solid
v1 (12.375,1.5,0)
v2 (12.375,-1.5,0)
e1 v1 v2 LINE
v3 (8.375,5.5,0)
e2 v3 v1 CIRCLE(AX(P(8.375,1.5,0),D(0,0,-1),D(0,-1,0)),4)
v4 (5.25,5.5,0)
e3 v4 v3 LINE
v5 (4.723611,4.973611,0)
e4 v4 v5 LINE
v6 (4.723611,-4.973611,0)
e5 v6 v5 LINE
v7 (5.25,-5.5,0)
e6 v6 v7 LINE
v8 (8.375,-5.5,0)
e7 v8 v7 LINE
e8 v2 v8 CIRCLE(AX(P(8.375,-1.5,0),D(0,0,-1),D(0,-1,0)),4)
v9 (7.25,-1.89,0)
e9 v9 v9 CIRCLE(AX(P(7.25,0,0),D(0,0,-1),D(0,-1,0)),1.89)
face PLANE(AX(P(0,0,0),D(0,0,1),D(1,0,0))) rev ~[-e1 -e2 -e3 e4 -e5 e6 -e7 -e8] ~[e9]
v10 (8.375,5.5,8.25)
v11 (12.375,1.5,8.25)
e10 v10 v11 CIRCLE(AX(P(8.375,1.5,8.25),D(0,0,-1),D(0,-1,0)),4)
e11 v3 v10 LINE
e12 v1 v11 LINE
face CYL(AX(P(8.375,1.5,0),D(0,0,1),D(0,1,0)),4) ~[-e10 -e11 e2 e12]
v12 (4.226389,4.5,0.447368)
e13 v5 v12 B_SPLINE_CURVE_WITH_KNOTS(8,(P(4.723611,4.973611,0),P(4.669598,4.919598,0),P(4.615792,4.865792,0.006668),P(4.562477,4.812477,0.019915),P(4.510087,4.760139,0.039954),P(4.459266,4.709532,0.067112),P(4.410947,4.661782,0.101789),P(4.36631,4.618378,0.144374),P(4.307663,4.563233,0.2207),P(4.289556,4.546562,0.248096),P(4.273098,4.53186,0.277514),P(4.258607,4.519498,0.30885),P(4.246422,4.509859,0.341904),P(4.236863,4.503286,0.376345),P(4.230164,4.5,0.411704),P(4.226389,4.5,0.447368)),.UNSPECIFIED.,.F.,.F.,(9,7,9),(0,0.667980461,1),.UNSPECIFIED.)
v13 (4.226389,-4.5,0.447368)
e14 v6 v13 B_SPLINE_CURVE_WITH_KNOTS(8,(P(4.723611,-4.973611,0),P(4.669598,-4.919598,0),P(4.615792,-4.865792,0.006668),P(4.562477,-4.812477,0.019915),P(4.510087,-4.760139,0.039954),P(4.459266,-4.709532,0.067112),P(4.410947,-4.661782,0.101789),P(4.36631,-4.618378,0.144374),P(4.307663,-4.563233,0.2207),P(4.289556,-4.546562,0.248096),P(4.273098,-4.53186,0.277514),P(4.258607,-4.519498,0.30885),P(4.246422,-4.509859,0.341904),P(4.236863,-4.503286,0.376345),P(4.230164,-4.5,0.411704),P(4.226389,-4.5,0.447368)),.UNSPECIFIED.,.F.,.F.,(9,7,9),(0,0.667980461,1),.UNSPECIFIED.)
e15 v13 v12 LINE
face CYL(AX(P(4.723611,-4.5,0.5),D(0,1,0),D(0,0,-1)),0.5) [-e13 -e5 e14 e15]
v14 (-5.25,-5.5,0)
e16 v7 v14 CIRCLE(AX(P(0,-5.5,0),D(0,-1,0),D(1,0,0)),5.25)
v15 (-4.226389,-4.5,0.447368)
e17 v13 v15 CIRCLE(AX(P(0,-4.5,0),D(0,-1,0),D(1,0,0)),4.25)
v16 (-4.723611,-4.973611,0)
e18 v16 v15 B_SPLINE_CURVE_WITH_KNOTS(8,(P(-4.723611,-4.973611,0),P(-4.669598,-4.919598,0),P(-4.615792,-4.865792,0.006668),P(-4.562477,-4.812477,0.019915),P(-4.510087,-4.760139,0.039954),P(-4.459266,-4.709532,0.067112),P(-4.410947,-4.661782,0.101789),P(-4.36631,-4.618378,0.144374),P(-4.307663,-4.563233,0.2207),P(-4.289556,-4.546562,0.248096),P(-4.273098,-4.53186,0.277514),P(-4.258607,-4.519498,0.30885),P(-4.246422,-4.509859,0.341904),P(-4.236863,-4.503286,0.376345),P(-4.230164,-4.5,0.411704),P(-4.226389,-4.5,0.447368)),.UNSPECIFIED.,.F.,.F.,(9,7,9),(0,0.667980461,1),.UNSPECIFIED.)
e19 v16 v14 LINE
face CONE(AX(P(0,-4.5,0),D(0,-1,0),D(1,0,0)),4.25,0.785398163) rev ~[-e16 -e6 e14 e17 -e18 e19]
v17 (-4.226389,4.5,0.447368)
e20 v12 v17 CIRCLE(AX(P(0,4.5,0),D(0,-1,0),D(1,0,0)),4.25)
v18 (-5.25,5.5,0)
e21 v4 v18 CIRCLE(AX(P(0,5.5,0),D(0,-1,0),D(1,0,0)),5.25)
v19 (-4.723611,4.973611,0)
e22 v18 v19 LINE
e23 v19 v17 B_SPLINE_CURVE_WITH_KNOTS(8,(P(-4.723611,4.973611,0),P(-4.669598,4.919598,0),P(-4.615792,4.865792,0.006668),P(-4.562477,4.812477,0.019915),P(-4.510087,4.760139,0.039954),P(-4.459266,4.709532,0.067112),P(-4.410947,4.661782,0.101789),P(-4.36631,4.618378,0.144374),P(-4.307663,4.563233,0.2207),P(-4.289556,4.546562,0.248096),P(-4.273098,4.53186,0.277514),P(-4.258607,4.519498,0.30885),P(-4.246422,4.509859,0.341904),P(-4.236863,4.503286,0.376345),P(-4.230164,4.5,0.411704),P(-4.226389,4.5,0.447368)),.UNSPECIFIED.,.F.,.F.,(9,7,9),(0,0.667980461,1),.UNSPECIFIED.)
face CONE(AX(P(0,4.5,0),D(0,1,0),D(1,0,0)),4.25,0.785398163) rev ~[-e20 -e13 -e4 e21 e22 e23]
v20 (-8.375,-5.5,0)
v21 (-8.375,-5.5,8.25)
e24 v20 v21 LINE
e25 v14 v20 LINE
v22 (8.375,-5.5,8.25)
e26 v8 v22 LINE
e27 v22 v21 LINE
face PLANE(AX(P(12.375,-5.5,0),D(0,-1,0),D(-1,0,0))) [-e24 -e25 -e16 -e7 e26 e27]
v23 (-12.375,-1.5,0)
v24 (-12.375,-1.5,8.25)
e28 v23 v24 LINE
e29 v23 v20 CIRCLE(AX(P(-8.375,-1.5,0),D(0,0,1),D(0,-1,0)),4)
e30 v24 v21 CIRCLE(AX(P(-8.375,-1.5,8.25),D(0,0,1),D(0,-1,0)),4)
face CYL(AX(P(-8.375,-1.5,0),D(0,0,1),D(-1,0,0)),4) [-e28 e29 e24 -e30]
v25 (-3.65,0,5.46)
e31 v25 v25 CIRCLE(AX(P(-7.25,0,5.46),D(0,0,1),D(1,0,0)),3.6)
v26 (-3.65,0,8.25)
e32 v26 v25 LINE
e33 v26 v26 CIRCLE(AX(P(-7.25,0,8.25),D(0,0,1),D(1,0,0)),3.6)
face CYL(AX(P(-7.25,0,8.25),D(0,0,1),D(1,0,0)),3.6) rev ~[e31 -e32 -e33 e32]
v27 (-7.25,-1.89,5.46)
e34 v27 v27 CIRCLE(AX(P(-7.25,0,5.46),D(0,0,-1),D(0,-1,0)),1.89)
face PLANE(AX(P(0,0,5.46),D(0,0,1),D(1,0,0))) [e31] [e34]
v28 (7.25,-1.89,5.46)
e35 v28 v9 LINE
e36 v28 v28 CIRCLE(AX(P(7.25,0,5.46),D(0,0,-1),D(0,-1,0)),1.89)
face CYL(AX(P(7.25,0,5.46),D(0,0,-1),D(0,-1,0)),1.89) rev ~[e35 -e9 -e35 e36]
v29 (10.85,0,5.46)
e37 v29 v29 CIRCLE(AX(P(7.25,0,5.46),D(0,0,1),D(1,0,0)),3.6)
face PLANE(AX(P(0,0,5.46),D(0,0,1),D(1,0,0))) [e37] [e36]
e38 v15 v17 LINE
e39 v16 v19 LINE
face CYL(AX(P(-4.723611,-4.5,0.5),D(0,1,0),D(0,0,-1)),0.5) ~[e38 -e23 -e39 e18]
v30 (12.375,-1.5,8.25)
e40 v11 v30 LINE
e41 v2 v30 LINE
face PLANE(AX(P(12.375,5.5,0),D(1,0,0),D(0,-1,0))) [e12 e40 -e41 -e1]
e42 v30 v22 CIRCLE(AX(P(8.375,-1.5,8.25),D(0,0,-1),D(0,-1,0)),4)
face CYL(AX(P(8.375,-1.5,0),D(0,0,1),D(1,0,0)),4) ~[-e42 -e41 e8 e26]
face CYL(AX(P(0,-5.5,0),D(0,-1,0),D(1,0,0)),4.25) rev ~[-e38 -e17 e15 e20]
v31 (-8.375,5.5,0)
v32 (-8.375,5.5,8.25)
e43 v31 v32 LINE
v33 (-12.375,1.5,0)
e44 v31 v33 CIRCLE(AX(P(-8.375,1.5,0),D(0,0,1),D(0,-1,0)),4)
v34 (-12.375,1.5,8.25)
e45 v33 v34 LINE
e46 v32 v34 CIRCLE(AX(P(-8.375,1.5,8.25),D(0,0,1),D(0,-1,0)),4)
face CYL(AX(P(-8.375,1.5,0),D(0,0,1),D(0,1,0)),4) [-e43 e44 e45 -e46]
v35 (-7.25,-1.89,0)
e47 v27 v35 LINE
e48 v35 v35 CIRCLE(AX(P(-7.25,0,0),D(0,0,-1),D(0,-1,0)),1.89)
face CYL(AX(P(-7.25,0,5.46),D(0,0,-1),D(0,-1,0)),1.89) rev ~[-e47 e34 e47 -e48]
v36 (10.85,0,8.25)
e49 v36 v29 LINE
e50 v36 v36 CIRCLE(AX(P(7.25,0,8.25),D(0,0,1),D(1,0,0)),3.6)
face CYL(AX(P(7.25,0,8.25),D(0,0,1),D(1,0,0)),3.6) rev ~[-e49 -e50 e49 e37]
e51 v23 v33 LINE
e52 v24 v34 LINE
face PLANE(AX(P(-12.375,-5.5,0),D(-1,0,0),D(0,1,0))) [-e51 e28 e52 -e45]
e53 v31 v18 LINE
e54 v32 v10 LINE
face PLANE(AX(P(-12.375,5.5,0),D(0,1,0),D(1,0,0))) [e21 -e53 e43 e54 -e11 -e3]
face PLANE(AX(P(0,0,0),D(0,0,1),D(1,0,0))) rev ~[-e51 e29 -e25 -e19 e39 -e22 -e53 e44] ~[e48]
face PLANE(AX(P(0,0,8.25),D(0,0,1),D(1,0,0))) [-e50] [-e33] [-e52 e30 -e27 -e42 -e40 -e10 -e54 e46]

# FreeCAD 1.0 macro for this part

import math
import FreeCAD as App
import Part
import Sketcher

V = App.Vector
Q = App.Units.Quantity


def edges_at(feature, points):
    """Names of the edges that pass closest to the given points."""
    edges = feature.Shape.Edges
    near = lambda p: min(range(len(edges)), key=lambda i: edges[i].distToShape(Part.Vertex(*p))[0])
    return sorted({f"Edge{near(p) + 1}" for p in points})


def add_polygon(sketch, points):
    """Adds a closed chain of lines whose ends are joined by coincident constraints."""
    first, n = sketch.GeometryCount, len(points)
    for a, b in zip(points, points[1:] + points[:1]):
        sketch.addGeometry(Part.LineSegment(App.Vector(*a, 0), App.Vector(*b, 0)), False)
    for i in range(n):
        sketch.addConstraint(Sketcher.Constraint("Coincident", first + i, 2, first + (i + 1) % n, 1))

doc = App.newDocument("Part")
params = doc.addObject("Spreadsheet::Sheet", "Params")
for row, (alias, value) in enumerate([
    ("sketch1_height", "11 mm"),
    ("sketch1_width", "24.75 mm"),
    ("pad1_length", "8.25 mm"),
    ("sketch2_diameter", "7.2 mm"),
    ("pocket1_length", "2.79 mm"),
    ("sketch3_diameter", "3.78 mm"),
    ("hole_diameter", "3.78 mm"),
    ("sketch4_diameter", "3.78 mm"),
    ("hole2_diameter", "3.78 mm"),
    ("fillet_radius", "4 mm"),
    ("sketch5_radius", "4.25 mm"),
    ("chamfer_size", "1 mm"),
    ("fillet2_radius", "0.5 mm"),
], start=1):
    params.set(f"A{row}", alias)
    params.set(f"B{row}", "=" + value)
    params.setAlias(f"B{row}", alias)

body = doc.addObject("PartDesign::Body", "Body")

sketch1 = doc.addObject("Sketcher::SketchObject", "Sketch")
body.addObject(sketch1)
sketch1.AttachmentSupport = (doc.XY_Plane, [""])
sketch1.MapMode = "FlatFace"
add_polygon(sketch1, [(12, 6), (-12, 6), (-12, -6), (12, -6)])
sketch1.addConstraint(Sketcher.Constraint("Horizontal", 0))
sketch1.addConstraint(Sketcher.Constraint("Vertical", 1))
sketch1.addConstraint(Sketcher.Constraint("Horizontal", 2))
sketch1.addConstraint(Sketcher.Constraint("Vertical", 3))
sketch1.addConstraint(Sketcher.Constraint("Symmetric", 0, 2, 2, 2, -1, 1))
sketch1.addConstraint(Sketcher.Constraint("DistanceY", 1, 2, 1, 1, Q("11 mm")))
sketch1.addConstraint(Sketcher.Constraint("DistanceX", 0, 2, 0, 1, Q("24.75 mm")))
sketch1.setExpression("Constraints[9]", "Params.sketch1_height")
sketch1.setExpression("Constraints[10]", "Params.sketch1_width")
pad1 = doc.addObject("PartDesign::Pad", "Pad")
body.addObject(pad1)
pad1.Profile = sketch1
pad1.setExpression("Length", "Params.pad1_length")

sketch2 = doc.addObject("Sketcher::SketchObject", "Sketch001")
body.addObject(sketch2)
sketch2.AttachmentSupport = (doc.XY_Plane, [""])
sketch2.MapMode = "FlatFace"
sketch2.AttachmentOffset = App.Placement(V(0, 0, 8.25), App.Rotation())
sketch2.addGeometry(Part.Circle(V(-7.2, 0, 0), V(0, 0, 1), 3.6), False)
sketch2.addGeometry(Part.Circle(V(7.2, 0, 0), V(0, 0, 1), 3.6), False)
sketch2.addConstraint(Sketcher.Constraint("Equal", 0, 1))
sketch2.addConstraint(Sketcher.Constraint("Symmetric", 0, 3, 1, 3, -1, 1))
sketch2.addConstraint(Sketcher.Constraint("PointOnObject", 0, 3, -1))
sketch2.addConstraint(Sketcher.Constraint("Diameter", 0, Q("7.2 mm")))
sketch2.addConstraint(Sketcher.Constraint("DistanceX", 0, 3, -1, 1, Q("7.25 mm")))
sketch2.setExpression("Constraints[3]", "Params.sketch2_diameter")
pocket1 = doc.addObject("PartDesign::Pocket", "Pocket")
body.addObject(pocket1)
pocket1.Profile = sketch2
pocket1.setExpression("Length", "Params.pocket1_length")

sketch3 = doc.addObject("Sketcher::SketchObject", "Sketch002")
body.addObject(sketch3)
sketch3.AttachmentSupport = (doc.XY_Plane, [""])
sketch3.MapMode = "FlatFace"
sketch3.AttachmentOffset = App.Placement(V(0, 0, 5.46), App.Rotation())
sketch3.addGeometry(Part.Circle(V(-7.2, 0, 0), V(0, 0, 1), 1.9), False)
sketch3.addConstraint(Sketcher.Constraint("PointOnObject", 0, 3, -1))
sketch3.addConstraint(Sketcher.Constraint("Diameter", 0, Q("3.78 mm")))
sketch3.addConstraint(Sketcher.Constraint("DistanceX", 0, 3, -1, 1, Q("7.25 mm")))
sketch3.setExpression("Constraints[1]", "Params.sketch3_diameter")
doc.recompute()
hole = doc.addObject("PartDesign::Hole", "Hole")
body.addObject(hole)
hole.Profile = sketch3
hole.ThreadType = "None"
hole.setExpression("Diameter", "Params.hole_diameter")
hole.DepthType = "ThroughAll"

sketch4 = doc.addObject("Sketcher::SketchObject", "Sketch003")
body.addObject(sketch4)
sketch4.AttachmentSupport = (doc.XY_Plane, [""])
sketch4.MapMode = "FlatFace"
sketch4.AttachmentOffset = App.Placement(V(0, 0, 5.46), App.Rotation())
sketch4.addGeometry(Part.Circle(V(7.2, 0, 0), V(0, 0, 1), 1.9), False)
sketch4.addConstraint(Sketcher.Constraint("PointOnObject", 0, 3, -1))
sketch4.addConstraint(Sketcher.Constraint("Diameter", 0, Q("3.78 mm")))
sketch4.addConstraint(Sketcher.Constraint("DistanceX", -1, 1, 0, 3, Q("7.25 mm")))
sketch4.setExpression("Constraints[1]", "Params.sketch4_diameter")
doc.recompute()
hole2 = doc.addObject("PartDesign::Hole", "Hole001")
body.addObject(hole2)
hole2.Profile = sketch4
hole2.ThreadType = "None"
hole2.setExpression("Diameter", "Params.hole2_diameter")
hole2.DepthType = "ThroughAll"
doc.recompute()

fillet = doc.addObject("PartDesign::Fillet", "Fillet")
body.addObject(fillet)
fillet.Base = (hole2, edges_at(hole2, [
    (12.375, -5.5, 4.125),
    (12.375, 5.5, 4.125),
    (-12.375, -5.5, 4.125),
    (-12.375, 5.5, 4.125),
]))
fillet.setExpression("Radius", "Params.fillet_radius")

sketch5 = doc.addObject("Sketcher::SketchObject", "Sketch004")
body.addObject(sketch5)
sketch5.AttachmentSupport = (doc.XZ_Plane, [""])
sketch5.MapMode = "FlatFace"
sketch5.AttachmentOffset = App.Placement(V(0, 0, 5.5), App.Rotation())
sketch5.addGeometry(Part.LineSegment(V(-4.2, 0, 0), V(4.2, 0, 0)), False)
sketch5.addGeometry(Part.ArcOfCircle(Part.Circle(V(0, 0, 0), V(0, 0, 1), 4.2), math.radians(0), math.radians(180)), False)
sketch5.addConstraint(Sketcher.Constraint("Coincident", 0, 1, 1, 2))
sketch5.addConstraint(Sketcher.Constraint("Coincident", 1, 1, 0, 2))
sketch5.addConstraint(Sketcher.Constraint("Horizontal", 0))
sketch5.addConstraint(Sketcher.Constraint("Coincident", 1, 3, -1, 1))
sketch5.addConstraint(Sketcher.Constraint("PointOnObject", 0, 1, -1))
sketch5.addConstraint(Sketcher.Constraint("Radius", 1, Q("4.25 mm")))
sketch5.setExpression("Constraints[5]", "Params.sketch5_radius")
pocket2 = doc.addObject("PartDesign::Pocket", "Pocket001")
body.addObject(pocket2)
pocket2.Profile = sketch5
pocket2.Type = "ThroughAll"
doc.recompute()

chamfer = doc.addObject("PartDesign::Chamfer", "Chamfer")
body.addObject(chamfer)
chamfer.Base = (pocket2, edges_at(pocket2, [(0, -5.5, 4.25), (0, 5.5, 4.25)]))
chamfer.setExpression("Size", "Params.chamfer_size")
doc.recompute()

fillet2 = doc.addObject("PartDesign::Fillet", "Fillet001")
body.addObject(fillet2)
fillet2.Base = (chamfer, edges_at(chamfer, [(-4.25, 0, 0), (4.25, 0, 0)]))
fillet2.setExpression("Radius", "Params.fillet2_radius")

doc.recompute()
